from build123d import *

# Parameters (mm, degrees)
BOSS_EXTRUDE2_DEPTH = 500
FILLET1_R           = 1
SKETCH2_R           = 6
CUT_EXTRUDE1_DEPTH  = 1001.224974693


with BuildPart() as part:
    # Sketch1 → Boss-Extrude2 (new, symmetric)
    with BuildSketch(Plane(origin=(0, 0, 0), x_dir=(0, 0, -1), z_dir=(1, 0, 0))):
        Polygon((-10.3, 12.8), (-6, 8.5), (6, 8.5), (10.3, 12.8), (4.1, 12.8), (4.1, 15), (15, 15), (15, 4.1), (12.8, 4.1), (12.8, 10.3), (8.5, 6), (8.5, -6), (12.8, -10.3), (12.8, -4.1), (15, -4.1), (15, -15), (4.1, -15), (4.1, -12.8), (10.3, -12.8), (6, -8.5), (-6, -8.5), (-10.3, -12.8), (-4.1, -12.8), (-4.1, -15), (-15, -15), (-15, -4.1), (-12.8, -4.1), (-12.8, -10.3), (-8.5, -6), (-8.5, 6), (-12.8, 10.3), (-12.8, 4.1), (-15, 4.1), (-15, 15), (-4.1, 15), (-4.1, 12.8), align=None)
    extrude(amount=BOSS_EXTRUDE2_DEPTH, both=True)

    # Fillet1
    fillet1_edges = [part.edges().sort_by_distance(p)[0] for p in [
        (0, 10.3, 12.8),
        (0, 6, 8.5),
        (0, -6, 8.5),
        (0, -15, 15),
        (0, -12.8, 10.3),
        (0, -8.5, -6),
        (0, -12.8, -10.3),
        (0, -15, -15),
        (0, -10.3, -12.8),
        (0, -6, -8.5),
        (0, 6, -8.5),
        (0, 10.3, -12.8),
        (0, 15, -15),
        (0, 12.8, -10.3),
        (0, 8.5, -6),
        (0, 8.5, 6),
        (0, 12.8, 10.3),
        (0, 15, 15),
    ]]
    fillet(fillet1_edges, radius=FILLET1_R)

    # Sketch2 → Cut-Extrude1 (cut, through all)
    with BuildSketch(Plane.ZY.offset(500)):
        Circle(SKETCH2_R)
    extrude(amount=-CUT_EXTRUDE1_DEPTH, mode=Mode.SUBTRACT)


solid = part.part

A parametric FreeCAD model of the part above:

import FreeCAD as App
import Part
import Sketcher
from FreeCAD import Vector
Q = App.Units.Quantity


def edges_at(feature, points):
    """Names of the edges that pass closest to the given points."""
    edges = feature.Shape.Edges
    near = lambda p: min(range(len(edges)), key=lambda i: edges[i].distToShape(Part.Vertex(*p))[0])
    return sorted({f"Edge{near(p) + 1}" for p in points})


def add_polygon(sketch, points):
    """Adds a closed chain of lines whose ends are joined by coincident constraints."""
    first, n = sketch.GeometryCount, len(points)
    for a, b in zip(points, points[1:] + points[:1]):
        sketch.addGeometry(Part.LineSegment(App.Vector(*a, 0), App.Vector(*b, 0)), False)
    for i in range(n):
        sketch.addConstraint(Sketcher.Constraint("Coincident", first + i, 2, first + (i + 1) % n, 1))

doc = App.newDocument("Part")
body = doc.addObject("PartDesign::Body", "Body")

sketch1 = body.newObject("Sketcher::SketchObject", "Sketch")
sketch1.AttachmentSupport = (doc.getObject("YZ_Plane"), [""])
sketch1.MapMode = "FlatFace"
add_polygon(sketch1, [(8.5, 6), (12.8, 10.3), (12.8, 4.1), (15, 4.1), (15, 15), (4.1, 15), (4.1, 12.8), (10.3, 12.8), (6, 8.5), (-6, 8.5), (-10.3, 12.8), (-4.1, 12.8), (-4.1, 15), (-15, 15), (-15, 4.1), (-12.8, 4.1), (-12.8, 10.3), (-8.5, 6), (-8.5, -6), (-12.8, -10.3), (-12.8, -4.1), (-15, -4.1), (-15, -15), (-4.1, -15), (-4.1, -12.8), (-10.3, -12.8), (-6, -8.5), (6, -8.5), (10.3, -12.8), (4.1, -12.8), (4.1, -15), (15, -15), (15, -4.1), (12.8, -4.1), (12.8, -10.3), (8.5, -6)])
sketch1.addConstraint([
    Sketcher.Constraint("Vertical", 1),
    Sketcher.Constraint("Horizontal", 2),
    Sketcher.Constraint("Vertical", 3),
    Sketcher.Constraint("Horizontal", 4),
    Sketcher.Constraint("Vertical", 5),
    Sketcher.Constraint("Horizontal", 6),
    Sketcher.Constraint("Horizontal", 8),
    Sketcher.Constraint("Horizontal", 10),
    Sketcher.Constraint("Vertical", 11),
    Sketcher.Constraint("Horizontal", 12),
    Sketcher.Constraint("Vertical", 13),
    Sketcher.Constraint("Horizontal", 14),
    Sketcher.Constraint("Vertical", 15),
    Sketcher.Constraint("Vertical", 17),
    Sketcher.Constraint("Vertical", 19),
    Sketcher.Constraint("Horizontal", 20),
    Sketcher.Constraint("Vertical", 21),
    Sketcher.Constraint("Horizontal", 22),
    Sketcher.Constraint("Vertical", 23),
    Sketcher.Constraint("Horizontal", 24),
    Sketcher.Constraint("Horizontal", 26),
    Sketcher.Constraint("Horizontal", 28),
    Sketcher.Constraint("Vertical", 29),
    Sketcher.Constraint("Horizontal", 30),
    Sketcher.Constraint("Vertical", 31),
    Sketcher.Constraint("Horizontal", 32),
    Sketcher.Constraint("Vertical", 33),
    Sketcher.Constraint("Vertical", 35),
    Sketcher.Constraint("Symmetric", 0, 2, 18, 2, -1, 1),
    Sketcher.Constraint("Symmetric", 2, 2, 20, 2, -1, 1),
    Sketcher.Constraint("Symmetric", 4, 2, 22, 2, -1, 1),
    Sketcher.Constraint("Symmetric", 6, 2, 24, 2, -1, 1),
    Sketcher.Constraint("Symmetric", 7, 2, 25, 2, -1, 1),
    Sketcher.Constraint("Symmetric", 9, 2, 27, 2, -1, 1),
    Sketcher.Constraint("Symmetric", 11, 2, 29, 2, -1, 1),
    Sketcher.Constraint("Symmetric", 13, 2, 31, 2, -1, 1),
    Sketcher.Constraint("Symmetric", 15, 2, 33, 2, -1, 1),
    Sketcher.Constraint("Symmetric", 16, 2, 34, 2, -1, 1),
    Sketcher.Constraint("Symmetric", 6, 2, 9, 2, -2),
    Sketcher.Constraint("Symmetric", 4, 2, 11, 2, -2),
    Sketcher.Constraint("Symmetric", 2, 2, 13, 2, -2),
    Sketcher.Constraint("Symmetric", 0, 2, 15, 2, -2),
    Sketcher.Constraint("Parallel", 0, 7),
    Sketcher.Constraint("Perpendicular", 7, 9),
    Sketcher.Constraint("Parallel", 9, 16),
    Sketcher.Constraint("Perpendicular", 16, 18),
    Sketcher.Constraint("Perpendicular", 25, 27),
    Sketcher.Constraint("Horizontal", 17, 2, 34, 2),
    Sketcher.Constraint("Equal", 28, 1),
    Sketcher.Constraint("Equal", 30, 3),
    Sketcher.Constraint("Equal", 32, 5),
    Sketcher.Constraint("Equal", 26, 17),
    Sketcher.Constraint("Equal", 0, 7),
    Sketcher.Constraint("DistanceX", 8, 2, 8, 1, Q("12 mm")),
    Sketcher.Constraint("DistanceX", 2, 1, 2, 2, Q("2.2 mm")),
    Sketcher.Constraint("DistanceX", 4, 2, 4, 1, Q("10.9 mm")),
    Sketcher.Constraint("DistanceX", 6, 1, 6, 2, Q("6.2 mm")),
    Sketcher.Constraint("DistanceX", -1, 1, 2, 2, Q("15 mm")),
])
pad1 = body.newObject("PartDesign::Pad", "Pad")
pad1.Profile = sketch1
pad1.Length = 1000
pad1.Midplane = True
doc.recompute()

fillet = body.newObject("PartDesign::Fillet", "Fillet")
fillet.Base = (pad1, edges_at(pad1, [
    (0, 10.3, 12.8),
    (0, 6, 8.5),
    (0, -6, 8.5),
    (0, -15, 15),
    (0, -12.8, 10.3),
    (0, -8.5, -6),
    (0, -12.8, -10.3),
    (0, -15, -15),
    (0, -10.3, -12.8),
    (0, -6, -8.5),
    (0, 6, -8.5),
    (0, 10.3, -12.8),
    (0, 15, -15),
    (0, 12.8, -10.3),
    (0, 8.5, -6),
    (0, 8.5, 6),
    (0, 12.8, 10.3),
    (0, 15, 15),
]))
fillet.Radius = 1

sketch2 = body.newObject("Sketcher::SketchObject", "Sketch001")
sketch2.AttachmentSupport = (doc.getObject("YZ_Plane"), [""])
sketch2.MapMode = "FlatFace"
sketch2.AttachmentOffset = App.Placement(Vector(0, 0, -500), App.Rotation())
sketch2.addGeometry(Part.Circle(Vector(0, 0, 0), Vector(0, 0, 1), 6), False)
sketch2.addConstraint([
    Sketcher.Constraint("Coincident", 0, 3, -1, 1),
    Sketcher.Constraint("Diameter", 0, Q("12 mm")),
])
pocket1 = body.newObject("PartDesign::Pocket", "Pocket")
pocket1.Profile = sketch2
pocket1.Type = "ThroughAll"
pocket1.Reversed = True

doc.recompute()
